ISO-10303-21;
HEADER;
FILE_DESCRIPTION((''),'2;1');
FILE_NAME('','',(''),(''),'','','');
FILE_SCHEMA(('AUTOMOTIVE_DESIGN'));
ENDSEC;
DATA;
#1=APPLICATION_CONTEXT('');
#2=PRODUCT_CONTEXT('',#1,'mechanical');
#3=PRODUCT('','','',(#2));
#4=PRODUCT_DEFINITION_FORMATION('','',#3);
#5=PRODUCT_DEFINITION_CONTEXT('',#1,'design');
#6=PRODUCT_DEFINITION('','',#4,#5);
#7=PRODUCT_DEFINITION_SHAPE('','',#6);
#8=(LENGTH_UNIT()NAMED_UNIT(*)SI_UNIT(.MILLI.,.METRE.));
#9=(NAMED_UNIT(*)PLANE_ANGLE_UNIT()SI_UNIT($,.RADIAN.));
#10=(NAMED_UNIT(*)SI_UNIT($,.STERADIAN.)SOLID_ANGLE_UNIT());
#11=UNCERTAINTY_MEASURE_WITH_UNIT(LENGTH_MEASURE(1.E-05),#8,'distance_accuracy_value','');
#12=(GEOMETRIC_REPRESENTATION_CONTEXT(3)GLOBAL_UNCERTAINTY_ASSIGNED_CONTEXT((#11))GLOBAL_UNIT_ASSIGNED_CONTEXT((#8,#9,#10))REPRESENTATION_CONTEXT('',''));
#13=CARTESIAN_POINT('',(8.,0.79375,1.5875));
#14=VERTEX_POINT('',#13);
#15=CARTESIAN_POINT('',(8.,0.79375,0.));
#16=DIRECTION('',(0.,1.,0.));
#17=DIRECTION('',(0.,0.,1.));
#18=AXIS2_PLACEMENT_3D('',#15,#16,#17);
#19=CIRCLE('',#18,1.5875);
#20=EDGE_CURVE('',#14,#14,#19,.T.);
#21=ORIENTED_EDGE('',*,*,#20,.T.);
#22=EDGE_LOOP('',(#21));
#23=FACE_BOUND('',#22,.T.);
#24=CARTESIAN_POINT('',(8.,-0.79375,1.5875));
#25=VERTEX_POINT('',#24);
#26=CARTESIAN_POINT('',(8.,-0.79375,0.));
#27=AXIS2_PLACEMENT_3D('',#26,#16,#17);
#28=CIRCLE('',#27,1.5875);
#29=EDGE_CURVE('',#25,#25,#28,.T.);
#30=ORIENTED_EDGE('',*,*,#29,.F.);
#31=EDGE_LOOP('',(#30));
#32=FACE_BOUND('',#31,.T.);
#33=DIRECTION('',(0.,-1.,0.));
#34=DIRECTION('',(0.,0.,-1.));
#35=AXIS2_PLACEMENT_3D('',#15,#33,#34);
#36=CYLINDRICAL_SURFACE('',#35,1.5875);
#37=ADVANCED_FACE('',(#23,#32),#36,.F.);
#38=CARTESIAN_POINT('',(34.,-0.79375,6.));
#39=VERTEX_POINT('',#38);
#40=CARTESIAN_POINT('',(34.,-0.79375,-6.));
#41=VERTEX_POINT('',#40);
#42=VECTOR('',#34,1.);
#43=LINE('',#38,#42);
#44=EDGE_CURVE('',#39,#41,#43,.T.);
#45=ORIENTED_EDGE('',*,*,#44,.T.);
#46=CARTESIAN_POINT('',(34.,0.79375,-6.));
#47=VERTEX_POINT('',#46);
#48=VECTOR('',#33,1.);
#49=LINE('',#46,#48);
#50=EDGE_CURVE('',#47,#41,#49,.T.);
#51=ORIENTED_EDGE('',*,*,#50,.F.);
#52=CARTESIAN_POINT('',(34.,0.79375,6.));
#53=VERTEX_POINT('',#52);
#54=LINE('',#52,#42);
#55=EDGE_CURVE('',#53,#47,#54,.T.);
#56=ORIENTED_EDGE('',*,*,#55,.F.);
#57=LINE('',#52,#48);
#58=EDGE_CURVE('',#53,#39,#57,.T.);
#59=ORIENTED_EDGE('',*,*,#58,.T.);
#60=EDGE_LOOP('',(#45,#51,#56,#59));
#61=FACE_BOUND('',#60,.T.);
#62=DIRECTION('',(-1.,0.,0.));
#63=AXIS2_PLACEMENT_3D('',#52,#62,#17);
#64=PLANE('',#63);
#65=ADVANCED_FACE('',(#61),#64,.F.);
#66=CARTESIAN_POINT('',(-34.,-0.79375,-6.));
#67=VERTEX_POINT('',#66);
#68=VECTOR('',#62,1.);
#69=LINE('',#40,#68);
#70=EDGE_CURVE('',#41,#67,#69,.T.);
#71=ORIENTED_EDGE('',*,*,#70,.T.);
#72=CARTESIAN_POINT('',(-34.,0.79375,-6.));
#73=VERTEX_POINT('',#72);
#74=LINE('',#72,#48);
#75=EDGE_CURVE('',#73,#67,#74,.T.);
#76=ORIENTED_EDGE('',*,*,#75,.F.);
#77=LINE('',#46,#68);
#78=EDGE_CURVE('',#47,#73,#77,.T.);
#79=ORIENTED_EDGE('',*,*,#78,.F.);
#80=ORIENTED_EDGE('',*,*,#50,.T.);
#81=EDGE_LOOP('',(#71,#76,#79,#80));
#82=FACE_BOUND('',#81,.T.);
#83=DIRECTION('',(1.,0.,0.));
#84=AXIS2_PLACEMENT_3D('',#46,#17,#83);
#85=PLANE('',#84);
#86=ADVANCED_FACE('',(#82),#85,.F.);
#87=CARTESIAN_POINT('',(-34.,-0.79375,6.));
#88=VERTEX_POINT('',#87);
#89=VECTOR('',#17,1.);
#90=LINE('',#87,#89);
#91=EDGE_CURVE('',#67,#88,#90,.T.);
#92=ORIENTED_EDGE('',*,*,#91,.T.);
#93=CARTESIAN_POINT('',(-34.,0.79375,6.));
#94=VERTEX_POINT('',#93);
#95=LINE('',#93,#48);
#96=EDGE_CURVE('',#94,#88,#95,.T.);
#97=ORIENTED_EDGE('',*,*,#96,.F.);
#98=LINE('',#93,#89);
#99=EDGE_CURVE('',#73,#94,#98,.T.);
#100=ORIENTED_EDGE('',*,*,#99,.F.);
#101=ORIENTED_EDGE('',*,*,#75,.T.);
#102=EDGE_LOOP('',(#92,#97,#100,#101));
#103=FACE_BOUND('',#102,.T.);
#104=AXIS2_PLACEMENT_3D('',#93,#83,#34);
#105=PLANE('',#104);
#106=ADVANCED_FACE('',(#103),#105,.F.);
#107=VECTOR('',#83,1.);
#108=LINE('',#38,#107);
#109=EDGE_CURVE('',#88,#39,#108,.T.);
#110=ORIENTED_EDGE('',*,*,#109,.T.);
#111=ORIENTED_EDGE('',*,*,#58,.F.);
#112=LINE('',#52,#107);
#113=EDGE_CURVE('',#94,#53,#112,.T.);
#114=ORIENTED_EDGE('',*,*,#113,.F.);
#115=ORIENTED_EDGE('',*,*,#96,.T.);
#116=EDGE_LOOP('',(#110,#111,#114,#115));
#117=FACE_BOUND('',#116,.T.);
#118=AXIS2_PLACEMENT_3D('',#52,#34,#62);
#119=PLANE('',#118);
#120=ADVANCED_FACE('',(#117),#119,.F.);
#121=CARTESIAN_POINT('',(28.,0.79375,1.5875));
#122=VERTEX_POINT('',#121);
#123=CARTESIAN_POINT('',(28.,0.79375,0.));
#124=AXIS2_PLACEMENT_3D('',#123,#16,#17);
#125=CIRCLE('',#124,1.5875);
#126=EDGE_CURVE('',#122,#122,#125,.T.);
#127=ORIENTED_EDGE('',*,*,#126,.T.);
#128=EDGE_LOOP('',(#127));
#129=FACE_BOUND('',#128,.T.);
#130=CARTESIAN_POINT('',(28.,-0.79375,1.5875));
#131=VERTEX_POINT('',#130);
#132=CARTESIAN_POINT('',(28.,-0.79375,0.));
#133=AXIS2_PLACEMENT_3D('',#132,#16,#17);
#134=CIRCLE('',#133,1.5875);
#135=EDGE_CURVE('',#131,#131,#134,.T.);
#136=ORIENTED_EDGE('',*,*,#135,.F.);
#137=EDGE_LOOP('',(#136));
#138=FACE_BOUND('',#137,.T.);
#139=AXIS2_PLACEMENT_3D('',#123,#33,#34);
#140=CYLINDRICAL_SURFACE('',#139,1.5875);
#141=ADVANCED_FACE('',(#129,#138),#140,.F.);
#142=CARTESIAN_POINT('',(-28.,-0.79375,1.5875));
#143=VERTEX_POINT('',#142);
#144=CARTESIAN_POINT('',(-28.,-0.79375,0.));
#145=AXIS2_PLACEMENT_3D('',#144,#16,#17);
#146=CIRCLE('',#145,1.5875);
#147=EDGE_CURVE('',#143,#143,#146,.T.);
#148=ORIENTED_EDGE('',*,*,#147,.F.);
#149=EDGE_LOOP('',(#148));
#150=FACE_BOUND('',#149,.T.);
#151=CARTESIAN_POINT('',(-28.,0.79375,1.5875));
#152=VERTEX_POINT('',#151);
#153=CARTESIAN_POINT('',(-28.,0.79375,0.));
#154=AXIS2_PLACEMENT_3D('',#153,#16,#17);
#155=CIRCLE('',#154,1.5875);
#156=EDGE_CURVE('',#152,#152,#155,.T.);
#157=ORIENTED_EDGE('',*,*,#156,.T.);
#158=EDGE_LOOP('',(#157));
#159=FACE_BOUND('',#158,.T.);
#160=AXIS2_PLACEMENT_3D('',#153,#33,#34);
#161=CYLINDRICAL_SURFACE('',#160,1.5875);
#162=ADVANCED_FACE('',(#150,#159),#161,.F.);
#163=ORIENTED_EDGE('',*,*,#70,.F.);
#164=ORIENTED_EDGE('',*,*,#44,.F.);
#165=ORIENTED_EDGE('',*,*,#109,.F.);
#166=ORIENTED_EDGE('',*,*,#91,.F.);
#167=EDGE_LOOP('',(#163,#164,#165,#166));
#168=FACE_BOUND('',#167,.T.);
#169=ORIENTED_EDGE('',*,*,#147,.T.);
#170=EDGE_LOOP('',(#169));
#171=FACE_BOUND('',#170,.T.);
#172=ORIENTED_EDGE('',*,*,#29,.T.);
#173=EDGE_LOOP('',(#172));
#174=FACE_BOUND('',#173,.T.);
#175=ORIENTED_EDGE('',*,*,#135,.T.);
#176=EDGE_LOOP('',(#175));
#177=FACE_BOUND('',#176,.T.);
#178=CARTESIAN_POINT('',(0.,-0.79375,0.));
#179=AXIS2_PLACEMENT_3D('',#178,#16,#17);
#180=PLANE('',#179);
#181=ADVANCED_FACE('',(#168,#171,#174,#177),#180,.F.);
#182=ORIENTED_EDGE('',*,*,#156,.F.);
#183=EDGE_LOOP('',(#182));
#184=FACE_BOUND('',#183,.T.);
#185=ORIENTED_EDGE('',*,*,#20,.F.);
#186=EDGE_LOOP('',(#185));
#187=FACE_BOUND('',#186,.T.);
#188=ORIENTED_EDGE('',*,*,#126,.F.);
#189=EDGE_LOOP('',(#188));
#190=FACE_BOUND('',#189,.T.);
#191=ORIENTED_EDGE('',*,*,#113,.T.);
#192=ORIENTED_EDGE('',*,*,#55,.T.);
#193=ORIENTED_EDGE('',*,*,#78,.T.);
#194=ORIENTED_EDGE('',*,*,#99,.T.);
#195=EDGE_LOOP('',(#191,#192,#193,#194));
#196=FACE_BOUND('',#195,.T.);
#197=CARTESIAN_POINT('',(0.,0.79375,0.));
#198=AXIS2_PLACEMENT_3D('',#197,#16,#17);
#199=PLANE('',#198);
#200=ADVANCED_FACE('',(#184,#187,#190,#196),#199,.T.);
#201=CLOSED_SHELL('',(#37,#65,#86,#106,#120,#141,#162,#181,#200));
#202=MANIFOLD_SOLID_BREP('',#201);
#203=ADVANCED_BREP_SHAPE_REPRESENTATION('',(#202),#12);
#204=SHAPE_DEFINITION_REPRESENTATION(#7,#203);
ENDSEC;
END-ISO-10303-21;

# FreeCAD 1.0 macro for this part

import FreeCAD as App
import Part
import Sketcher
from FreeCAD import Vector
Q = App.Units.Quantity


def add_polygon(sketch, points):
    """Adds a closed chain of lines whose ends are joined by coincident constraints."""
    first, n = sketch.GeometryCount, len(points)
    for a, b in zip(points, points[1:] + points[:1]):
        sketch.addGeometry(Part.LineSegment(App.Vector(*a, 0), App.Vector(*b, 0)), False)
    for i in range(n):
        sketch.addConstraint(Sketcher.Constraint("Coincident", first + i, 2, first + (i + 1) % n, 1))

doc = App.newDocument("Part")
body = doc.addObject("PartDesign::Body", "Body")

# Sketch on XZ plane
sketch1 = doc.addObject("Sketcher::SketchObject", "Sketch")
body.addObject(sketch1)
sketch1.AttachmentSupport = (doc.XZ_Plane, [""])
sketch1.MapMode = "FlatFace"
add_polygon(sketch1, [(-34, -6), (-34, 6), (34, 6), (34, -6)])  # lines 0-3
sketch1.addGeometry(Part.Circle(Vector(-28, 0, 0), Vector(0, 0, 1), 1.5875), False)  # 4
sketch1.addGeometry(Part.Circle(Vector(8, 0, 0), Vector(0, 0, 1), 1.5875), False)  # 5
sketch1.addGeometry(Part.Circle(Vector(28, 0, 0), Vector(0, 0, 1), 1.5875), False)  # 6
sketch1.addConstraint([
    Sketcher.Constraint("Vertical", 0),
    Sketcher.Constraint("Horizontal", 1),
    Sketcher.Constraint("Vertical", 2),
    Sketcher.Constraint("Horizontal", 3),
    Sketcher.Constraint("Equal", 4, 5),
    Sketcher.Constraint("Equal", 5, 6),
    Sketcher.Constraint("Symmetric", 4, 3, 6, 3, -1, 1),
    Sketcher.Constraint("Symmetric", 0, 2, 2, 2, -1, 1),
    Sketcher.Constraint("PointOnObject", 4, 3, -1),
    Sketcher.Constraint("PointOnObject", 5, 3, -1),
    Sketcher.Constraint("DistanceX", 1, 1, 1, 2, Q("68 mm")),
    Sketcher.Constraint("DistanceY", 0, 1, 0, 2, Q("12 mm")),
    Sketcher.Constraint("Diameter", 4, Q("3.175 mm")),
    Sketcher.Constraint("DistanceX", 4, 3, -1, 1, Q("28 mm")),
    Sketcher.Constraint("DistanceX", -1, 1, 5, 3, Q("8 mm")),
])
pad1 = doc.addObject("PartDesign::Pad", "Pad")
body.addObject(pad1)
pad1.Profile = sketch1
pad1.Length = 1.5875
pad1.Midplane = True

doc.recompute()
